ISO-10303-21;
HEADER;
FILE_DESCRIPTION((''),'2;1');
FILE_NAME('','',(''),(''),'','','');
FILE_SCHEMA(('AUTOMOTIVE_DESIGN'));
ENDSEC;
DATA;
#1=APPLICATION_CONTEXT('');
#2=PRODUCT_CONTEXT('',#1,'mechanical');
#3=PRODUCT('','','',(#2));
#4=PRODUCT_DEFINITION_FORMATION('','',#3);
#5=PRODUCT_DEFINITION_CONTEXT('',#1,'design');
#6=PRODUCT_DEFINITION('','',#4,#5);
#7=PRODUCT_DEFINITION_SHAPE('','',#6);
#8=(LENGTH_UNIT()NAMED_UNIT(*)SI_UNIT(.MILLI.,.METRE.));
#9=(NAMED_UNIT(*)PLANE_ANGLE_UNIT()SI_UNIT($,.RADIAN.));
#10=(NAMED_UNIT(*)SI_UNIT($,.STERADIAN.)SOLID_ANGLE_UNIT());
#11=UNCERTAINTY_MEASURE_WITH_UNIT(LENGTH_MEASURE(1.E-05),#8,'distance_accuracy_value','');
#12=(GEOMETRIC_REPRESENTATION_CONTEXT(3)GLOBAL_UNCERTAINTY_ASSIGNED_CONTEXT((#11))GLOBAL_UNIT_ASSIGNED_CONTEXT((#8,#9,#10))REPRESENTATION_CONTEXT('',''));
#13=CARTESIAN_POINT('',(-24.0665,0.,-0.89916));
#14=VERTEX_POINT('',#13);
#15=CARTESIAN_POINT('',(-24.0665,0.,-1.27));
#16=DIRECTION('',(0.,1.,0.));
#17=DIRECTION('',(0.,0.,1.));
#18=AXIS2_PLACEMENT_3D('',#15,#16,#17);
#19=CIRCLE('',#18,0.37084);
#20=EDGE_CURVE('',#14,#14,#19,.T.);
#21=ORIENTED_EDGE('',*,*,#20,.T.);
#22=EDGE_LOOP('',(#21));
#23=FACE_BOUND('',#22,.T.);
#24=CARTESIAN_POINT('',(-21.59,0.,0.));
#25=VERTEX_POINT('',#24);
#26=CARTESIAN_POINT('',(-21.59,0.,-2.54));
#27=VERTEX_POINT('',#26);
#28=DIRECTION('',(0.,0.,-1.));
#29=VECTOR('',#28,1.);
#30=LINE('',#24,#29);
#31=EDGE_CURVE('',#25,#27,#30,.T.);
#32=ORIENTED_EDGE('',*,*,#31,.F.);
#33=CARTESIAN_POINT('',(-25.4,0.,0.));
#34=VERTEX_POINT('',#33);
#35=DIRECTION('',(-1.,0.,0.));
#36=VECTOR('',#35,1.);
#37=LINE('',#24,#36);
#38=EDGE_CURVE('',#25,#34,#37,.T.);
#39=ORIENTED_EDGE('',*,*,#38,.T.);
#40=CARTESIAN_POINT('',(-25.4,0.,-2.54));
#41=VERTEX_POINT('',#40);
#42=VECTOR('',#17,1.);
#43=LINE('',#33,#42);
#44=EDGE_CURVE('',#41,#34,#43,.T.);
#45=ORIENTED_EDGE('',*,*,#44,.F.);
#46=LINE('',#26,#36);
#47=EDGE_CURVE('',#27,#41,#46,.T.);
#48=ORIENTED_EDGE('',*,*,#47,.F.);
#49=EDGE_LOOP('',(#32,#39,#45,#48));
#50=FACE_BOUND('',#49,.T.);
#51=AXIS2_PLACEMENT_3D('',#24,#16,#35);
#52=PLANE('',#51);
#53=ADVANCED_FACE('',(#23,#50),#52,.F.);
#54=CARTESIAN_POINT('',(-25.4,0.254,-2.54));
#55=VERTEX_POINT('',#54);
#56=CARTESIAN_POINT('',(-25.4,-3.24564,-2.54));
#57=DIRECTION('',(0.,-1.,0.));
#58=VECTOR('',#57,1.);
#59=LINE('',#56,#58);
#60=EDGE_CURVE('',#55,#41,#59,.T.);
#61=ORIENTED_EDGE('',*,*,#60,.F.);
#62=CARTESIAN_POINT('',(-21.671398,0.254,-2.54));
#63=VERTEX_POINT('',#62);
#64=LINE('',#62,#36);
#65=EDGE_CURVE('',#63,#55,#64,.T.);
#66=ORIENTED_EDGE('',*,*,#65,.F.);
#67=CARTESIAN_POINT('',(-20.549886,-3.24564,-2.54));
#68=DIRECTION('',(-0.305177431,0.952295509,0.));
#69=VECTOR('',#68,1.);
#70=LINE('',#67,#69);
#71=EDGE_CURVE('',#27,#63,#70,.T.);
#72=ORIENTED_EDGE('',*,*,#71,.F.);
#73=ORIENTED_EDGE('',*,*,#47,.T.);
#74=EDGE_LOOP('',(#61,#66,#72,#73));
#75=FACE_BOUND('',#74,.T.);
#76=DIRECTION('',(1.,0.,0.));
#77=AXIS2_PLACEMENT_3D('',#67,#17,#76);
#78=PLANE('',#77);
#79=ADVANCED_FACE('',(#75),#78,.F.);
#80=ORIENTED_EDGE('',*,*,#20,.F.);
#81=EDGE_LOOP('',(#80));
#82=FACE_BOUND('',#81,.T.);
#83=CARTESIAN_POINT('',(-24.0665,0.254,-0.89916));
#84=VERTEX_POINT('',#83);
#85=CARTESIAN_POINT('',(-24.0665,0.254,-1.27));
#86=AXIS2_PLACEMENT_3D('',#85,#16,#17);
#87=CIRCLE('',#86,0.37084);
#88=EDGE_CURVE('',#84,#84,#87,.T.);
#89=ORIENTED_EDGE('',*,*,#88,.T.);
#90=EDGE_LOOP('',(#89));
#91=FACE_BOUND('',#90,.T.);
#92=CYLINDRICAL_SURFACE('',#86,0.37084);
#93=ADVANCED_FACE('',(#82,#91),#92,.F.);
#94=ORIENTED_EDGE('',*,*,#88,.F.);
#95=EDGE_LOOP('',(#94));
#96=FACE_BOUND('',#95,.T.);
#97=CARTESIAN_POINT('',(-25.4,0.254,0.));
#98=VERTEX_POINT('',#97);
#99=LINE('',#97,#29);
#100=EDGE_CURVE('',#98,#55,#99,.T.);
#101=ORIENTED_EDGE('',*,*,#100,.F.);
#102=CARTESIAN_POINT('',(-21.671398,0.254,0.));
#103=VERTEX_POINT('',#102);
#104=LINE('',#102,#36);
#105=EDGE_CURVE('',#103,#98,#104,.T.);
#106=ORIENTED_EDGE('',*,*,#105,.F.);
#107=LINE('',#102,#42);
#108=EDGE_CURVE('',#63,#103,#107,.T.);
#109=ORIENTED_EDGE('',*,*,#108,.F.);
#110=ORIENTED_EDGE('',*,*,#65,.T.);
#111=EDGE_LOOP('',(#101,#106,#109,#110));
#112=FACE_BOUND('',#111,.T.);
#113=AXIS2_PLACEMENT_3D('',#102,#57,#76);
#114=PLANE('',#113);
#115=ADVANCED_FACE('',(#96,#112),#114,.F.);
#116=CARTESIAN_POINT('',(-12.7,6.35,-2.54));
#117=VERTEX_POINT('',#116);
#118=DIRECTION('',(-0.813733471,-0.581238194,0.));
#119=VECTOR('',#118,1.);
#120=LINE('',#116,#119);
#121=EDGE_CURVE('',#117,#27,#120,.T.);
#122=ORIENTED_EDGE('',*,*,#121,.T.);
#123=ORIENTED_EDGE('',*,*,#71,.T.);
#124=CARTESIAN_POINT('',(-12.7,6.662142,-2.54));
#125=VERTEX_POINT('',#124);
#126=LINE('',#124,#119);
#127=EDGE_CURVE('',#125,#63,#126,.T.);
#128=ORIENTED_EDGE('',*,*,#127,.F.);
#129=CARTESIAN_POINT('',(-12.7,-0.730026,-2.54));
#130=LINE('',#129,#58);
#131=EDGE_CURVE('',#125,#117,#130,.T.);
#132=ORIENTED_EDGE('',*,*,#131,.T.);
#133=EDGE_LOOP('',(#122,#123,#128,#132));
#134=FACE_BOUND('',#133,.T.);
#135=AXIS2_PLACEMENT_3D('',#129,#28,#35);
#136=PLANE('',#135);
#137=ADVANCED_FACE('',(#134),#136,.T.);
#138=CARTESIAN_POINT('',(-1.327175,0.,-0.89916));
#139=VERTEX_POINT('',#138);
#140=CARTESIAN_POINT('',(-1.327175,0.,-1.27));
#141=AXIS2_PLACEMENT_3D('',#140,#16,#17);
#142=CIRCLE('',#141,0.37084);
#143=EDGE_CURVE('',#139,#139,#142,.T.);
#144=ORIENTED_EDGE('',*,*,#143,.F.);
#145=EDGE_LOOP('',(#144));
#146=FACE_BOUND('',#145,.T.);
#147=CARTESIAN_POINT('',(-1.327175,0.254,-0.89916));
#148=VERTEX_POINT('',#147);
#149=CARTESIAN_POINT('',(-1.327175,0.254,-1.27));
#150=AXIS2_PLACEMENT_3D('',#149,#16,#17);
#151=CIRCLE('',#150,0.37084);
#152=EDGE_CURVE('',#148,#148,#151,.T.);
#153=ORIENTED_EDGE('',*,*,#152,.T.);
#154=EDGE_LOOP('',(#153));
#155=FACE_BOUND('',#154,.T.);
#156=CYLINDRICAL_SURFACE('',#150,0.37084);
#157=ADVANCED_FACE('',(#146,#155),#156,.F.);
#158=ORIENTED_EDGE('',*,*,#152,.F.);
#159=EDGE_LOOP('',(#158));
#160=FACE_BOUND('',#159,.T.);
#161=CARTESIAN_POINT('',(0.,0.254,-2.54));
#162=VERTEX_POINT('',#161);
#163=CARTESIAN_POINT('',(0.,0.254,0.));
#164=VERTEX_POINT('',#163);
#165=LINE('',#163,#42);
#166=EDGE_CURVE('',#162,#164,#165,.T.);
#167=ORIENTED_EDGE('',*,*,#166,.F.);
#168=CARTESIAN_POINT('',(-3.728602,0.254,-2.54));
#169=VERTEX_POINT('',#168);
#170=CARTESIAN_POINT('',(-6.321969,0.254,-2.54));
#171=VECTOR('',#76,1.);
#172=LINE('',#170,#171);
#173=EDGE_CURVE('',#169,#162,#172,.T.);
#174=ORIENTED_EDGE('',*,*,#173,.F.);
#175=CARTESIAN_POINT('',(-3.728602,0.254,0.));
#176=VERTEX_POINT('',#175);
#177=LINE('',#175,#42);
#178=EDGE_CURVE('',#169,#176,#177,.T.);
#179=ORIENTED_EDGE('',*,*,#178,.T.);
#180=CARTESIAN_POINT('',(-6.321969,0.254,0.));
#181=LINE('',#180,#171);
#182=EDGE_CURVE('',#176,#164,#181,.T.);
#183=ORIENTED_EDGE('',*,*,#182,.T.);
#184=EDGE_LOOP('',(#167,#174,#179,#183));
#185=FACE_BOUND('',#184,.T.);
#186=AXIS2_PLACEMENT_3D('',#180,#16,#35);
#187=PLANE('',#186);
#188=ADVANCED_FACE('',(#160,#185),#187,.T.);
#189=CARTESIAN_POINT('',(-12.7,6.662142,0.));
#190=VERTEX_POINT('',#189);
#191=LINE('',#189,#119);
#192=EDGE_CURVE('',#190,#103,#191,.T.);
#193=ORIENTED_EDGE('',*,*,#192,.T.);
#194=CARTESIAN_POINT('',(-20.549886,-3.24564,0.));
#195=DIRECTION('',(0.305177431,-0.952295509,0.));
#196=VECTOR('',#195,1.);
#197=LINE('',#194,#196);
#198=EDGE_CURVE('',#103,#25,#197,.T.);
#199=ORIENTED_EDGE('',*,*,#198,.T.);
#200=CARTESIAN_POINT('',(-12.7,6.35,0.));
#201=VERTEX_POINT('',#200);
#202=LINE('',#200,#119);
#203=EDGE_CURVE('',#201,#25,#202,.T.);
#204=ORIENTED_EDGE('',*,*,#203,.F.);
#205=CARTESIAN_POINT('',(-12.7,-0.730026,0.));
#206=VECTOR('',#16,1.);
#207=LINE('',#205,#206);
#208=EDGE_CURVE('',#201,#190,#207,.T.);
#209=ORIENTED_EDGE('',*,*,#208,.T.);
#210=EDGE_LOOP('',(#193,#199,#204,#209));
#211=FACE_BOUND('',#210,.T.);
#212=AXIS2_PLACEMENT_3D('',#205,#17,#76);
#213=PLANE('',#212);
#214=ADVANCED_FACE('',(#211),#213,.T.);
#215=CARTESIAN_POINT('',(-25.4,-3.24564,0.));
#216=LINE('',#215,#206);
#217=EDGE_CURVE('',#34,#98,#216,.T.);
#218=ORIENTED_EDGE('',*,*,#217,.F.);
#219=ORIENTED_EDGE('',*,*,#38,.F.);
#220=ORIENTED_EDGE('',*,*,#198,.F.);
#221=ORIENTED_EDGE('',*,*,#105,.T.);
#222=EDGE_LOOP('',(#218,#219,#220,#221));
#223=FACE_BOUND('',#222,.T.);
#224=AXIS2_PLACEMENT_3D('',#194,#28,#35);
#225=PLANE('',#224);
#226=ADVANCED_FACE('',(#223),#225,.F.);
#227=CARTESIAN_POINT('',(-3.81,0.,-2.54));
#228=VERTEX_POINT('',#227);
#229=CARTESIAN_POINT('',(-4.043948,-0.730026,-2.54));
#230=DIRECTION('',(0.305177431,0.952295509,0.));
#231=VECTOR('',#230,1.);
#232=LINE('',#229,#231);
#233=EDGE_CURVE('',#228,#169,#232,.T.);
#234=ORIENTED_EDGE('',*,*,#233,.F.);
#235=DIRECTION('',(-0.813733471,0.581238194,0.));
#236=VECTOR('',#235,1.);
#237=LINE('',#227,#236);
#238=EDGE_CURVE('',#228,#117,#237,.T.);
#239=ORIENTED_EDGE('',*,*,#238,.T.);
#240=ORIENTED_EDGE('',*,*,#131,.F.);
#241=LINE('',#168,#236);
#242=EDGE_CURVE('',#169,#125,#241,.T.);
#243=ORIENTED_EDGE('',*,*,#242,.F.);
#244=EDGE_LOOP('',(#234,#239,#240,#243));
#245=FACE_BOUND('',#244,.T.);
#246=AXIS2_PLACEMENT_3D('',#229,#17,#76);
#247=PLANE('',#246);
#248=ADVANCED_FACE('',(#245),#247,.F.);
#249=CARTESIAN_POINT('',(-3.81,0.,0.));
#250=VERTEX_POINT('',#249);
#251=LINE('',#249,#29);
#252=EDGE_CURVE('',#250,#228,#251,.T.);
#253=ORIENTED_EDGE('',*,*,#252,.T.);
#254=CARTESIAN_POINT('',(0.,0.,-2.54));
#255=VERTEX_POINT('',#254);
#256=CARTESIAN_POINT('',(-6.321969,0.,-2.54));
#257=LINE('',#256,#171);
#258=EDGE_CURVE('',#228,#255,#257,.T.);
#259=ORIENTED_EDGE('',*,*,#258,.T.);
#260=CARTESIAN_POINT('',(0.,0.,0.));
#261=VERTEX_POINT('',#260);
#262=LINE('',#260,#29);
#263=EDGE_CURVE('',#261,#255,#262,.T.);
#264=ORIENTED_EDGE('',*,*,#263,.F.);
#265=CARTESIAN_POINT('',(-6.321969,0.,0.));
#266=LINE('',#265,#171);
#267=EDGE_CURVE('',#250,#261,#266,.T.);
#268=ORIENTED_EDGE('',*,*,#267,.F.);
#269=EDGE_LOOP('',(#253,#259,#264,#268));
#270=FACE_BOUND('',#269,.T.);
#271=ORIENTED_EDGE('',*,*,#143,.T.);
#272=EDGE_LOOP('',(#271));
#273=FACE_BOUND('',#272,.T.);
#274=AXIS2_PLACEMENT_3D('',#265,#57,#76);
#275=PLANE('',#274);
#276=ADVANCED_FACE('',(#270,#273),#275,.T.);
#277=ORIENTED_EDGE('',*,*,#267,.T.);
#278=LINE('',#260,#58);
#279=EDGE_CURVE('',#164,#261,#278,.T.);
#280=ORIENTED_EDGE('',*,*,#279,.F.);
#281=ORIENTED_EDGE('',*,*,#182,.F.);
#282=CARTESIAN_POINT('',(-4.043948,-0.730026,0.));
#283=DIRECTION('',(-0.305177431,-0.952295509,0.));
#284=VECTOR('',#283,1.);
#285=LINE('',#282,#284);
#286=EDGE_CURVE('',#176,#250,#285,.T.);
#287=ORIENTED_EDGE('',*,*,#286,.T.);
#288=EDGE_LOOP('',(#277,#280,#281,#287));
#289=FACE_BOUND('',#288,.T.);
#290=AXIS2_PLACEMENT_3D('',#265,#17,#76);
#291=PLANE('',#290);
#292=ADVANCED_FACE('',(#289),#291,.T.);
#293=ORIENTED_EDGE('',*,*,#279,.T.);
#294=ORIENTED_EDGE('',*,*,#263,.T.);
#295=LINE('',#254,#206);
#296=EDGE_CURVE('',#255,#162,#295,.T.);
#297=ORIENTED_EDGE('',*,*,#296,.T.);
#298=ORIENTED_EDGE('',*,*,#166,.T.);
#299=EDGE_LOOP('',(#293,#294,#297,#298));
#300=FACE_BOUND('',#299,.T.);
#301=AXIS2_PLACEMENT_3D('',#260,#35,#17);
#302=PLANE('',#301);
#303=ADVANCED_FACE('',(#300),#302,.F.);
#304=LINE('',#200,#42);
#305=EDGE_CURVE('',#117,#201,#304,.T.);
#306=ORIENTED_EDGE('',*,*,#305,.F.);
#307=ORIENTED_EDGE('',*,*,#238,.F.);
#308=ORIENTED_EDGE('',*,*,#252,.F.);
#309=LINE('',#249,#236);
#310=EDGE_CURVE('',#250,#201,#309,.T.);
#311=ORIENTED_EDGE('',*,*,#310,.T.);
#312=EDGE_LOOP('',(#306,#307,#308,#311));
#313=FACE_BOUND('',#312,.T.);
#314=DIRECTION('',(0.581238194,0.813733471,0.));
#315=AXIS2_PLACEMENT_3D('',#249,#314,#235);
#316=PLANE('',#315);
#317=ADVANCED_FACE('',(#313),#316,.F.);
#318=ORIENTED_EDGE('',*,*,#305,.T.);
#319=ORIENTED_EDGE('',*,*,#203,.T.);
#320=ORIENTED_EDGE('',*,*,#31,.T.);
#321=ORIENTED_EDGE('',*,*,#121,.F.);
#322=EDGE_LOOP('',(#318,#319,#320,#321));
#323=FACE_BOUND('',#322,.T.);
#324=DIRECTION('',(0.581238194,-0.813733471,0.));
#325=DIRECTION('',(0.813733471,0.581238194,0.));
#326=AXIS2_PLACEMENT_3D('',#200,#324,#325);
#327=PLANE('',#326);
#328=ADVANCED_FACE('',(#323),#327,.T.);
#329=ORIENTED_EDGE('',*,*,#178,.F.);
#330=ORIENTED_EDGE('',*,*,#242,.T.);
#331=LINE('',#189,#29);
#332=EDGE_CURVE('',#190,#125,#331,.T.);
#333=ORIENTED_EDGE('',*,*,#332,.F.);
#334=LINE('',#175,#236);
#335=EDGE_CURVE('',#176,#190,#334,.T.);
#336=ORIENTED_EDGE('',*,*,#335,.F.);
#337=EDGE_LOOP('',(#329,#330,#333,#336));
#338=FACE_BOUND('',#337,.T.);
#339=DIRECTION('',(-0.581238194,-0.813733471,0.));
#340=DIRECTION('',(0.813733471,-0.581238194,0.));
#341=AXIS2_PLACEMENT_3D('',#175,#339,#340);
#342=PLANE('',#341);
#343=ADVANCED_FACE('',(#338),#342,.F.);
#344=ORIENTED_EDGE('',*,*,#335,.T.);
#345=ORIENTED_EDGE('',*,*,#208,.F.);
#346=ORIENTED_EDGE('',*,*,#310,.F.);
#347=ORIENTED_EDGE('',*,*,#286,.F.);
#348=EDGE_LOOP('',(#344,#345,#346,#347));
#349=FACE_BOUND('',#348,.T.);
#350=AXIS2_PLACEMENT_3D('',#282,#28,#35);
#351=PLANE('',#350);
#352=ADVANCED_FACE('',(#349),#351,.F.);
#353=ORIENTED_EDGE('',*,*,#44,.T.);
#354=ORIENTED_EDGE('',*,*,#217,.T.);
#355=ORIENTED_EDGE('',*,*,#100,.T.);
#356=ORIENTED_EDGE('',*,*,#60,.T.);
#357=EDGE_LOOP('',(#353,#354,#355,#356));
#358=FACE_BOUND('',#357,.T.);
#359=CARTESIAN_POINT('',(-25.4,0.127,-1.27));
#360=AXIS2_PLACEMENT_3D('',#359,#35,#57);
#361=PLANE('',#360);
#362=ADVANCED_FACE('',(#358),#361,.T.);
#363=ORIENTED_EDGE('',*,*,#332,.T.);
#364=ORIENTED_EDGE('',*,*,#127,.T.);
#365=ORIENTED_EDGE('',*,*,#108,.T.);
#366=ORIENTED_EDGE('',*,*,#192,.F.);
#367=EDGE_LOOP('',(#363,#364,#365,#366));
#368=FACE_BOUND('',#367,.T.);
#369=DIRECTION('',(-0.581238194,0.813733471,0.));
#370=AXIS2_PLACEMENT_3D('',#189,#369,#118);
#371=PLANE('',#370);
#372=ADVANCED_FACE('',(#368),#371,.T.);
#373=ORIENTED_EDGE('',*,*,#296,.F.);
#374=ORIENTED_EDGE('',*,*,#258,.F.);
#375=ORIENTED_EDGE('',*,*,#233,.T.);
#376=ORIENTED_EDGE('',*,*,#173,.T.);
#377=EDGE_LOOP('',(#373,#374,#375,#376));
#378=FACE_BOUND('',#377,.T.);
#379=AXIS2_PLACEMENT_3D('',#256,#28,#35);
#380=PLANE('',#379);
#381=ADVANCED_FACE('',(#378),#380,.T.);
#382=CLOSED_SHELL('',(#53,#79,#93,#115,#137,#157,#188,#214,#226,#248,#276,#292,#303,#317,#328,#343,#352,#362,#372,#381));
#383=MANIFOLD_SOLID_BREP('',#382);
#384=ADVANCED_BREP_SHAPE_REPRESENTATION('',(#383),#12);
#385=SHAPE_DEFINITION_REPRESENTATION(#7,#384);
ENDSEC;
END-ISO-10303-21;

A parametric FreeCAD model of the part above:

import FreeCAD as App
import Part
import Sketcher

V = App.Vector
Q = App.Units.Quantity


def add_polygon(sketch, points):
    """Adds a closed chain of lines whose ends are joined by coincident constraints."""
    first, n = sketch.GeometryCount, len(points)
    for a, b in zip(points, points[1:] + points[:1]):
        sketch.addGeometry(Part.LineSegment(App.Vector(*a, 0), App.Vector(*b, 0)), False)
    for i in range(n):
        sketch.addConstraint(Sketcher.Constraint("Coincident", first + i, 2, first + (i + 1) % n, 1))

doc = App.newDocument("Part")
body = doc.addObject("PartDesign::Body", "Body")

# Sketch on YZ plane
sketch1 = doc.addObject("Sketcher::SketchObject", "Sketch")
body.addObject(sketch1)
sketch1.AttachmentSupport = (doc.YZ_Plane, [""])
sketch1.MapMode = "FlatFace"
add_polygon(sketch1, [(0.25, 0), (0, 0), (0, -2.54), (0.25, -2.54)])  # lines 0-3
sketch1.addConstraint(Sketcher.Constraint("Horizontal", 0))
sketch1.addConstraint(Sketcher.Constraint("Vertical", 1))
sketch1.addConstraint(Sketcher.Constraint("Horizontal", 2))
sketch1.addConstraint(Sketcher.Constraint("Vertical", 3))
sketch1.addConstraint(Sketcher.Constraint("Coincident", 0, 2, -1, 1))
sketch1.addConstraint(Sketcher.Constraint("DistanceY", 1, 2, 1, 1, Q("0.1 in")))
sketch1.addConstraint(Sketcher.Constraint("DistanceX", 0, 2, 0, 1, Q("0.01 in")))

# Sketch on XY plane
sketch2 = doc.addObject("Sketcher::SketchObject", "Sketch001")
body.addObject(sketch2)
sketch2.AttachmentSupport = (doc.XY_Plane, [""])
sketch2.MapMode = "FlatFace"
sketch2.addGeometry(Part.LineSegment(V(0, 0, 0), V(-3.8, 0, 0)), False)
sketch2.addGeometry(Part.LineSegment(V(-3.8, 0, 0), V(-12.7, 6.3, 0)), False)
sketch2.addGeometry(Part.LineSegment(V(-12.7, 6.3, 0), V(-21.6, 0, 0)), False)
sketch2.addGeometry(Part.LineSegment(V(-21.6, 0, 0), V(-25.4, 0, 0)), False)
sketch2.addConstraint(Sketcher.Constraint("Coincident", 0, 2, 1, 1))
sketch2.addConstraint(Sketcher.Constraint("Coincident", 1, 2, 2, 1))
sketch2.addConstraint(Sketcher.Constraint("Coincident", 2, 2, 3, 1))
sketch2.addConstraint(Sketcher.Constraint("Horizontal", 0))
sketch2.addConstraint(Sketcher.Constraint("Horizontal", 3))
sketch2.addConstraint(Sketcher.Constraint("Coincident", 0, 1, -1, 1))
sketch2.addConstraint(Sketcher.Constraint("PointOnObject", 2, 2, -1))
sketch2.addConstraint(Sketcher.Constraint("Equal", 0, 3))
sketch2.addConstraint(Sketcher.Constraint("Equal", 1, 2))
sketch2.addConstraint(Sketcher.Constraint("DistanceX", 3, 2, -1, 1, Q("1 in")))
sketch2.addConstraint(Sketcher.Constraint("DistanceX", 0, 2, 0, 1, Q("0.15 in")))
sketch2.addConstraint(Sketcher.Constraint("DistanceY", -1, 1, 1, 2, Q("0.25 in")))
doc.recompute()

additivepipe = doc.addObject("PartDesign::AdditivePipe", "AdditivePipe")
body.addObject(additivepipe)
additivepipe.Profile = sketch1
additivepipe.Spine = (sketch2, ["Edge1", "Edge2", "Edge3", "Edge4"])
additivepipe.Transition = "Right corner"

# Sketch on XZ plane
sketch3 = doc.addObject("Sketcher::SketchObject", "Sketch002")
body.addObject(sketch3)
sketch3.AttachmentSupport = (doc.XZ_Plane, [""])
sketch3.MapMode = "FlatFace"
sketch3.AttachmentOffset = App.Placement(V(0, 0, -0.01 * 25.4), App.Rotation())
sketch3.addGeometry(Part.Circle(V(-24.07, -1.27, 0), V(0, 0, 1), 0.37), False)
sketch3.addGeometry(Part.Circle(V(-1.33, -1.27, 0), V(0, 0, 1), 0.37), False)
sketch3.addConstraint(Sketcher.Constraint("Equal", 0, 1))
sketch3.addConstraint(Sketcher.Constraint("Horizontal", 0, 3, 1, 3))
sketch3.addConstraint(Sketcher.Constraint("Diameter", 0, Q("0.0292 in")))
sketch3.addConstraint(Sketcher.Constraint("DistanceY", 0, 3, -1, 1, Q("0.05 in")))
sketch3.addConstraint(Sketcher.Constraint("DistanceX", 0, 3, -1, 1, Q("0.9475 in")))
sketch3.addConstraint(Sketcher.Constraint("DistanceX", 1, 3, -1, 1, 1.327175))
doc.recompute()
hole = doc.addObject("PartDesign::Hole", "Hole")
body.addObject(hole)
hole.Profile = sketch3
hole.ThreadType = "None"
hole.Diameter = Q("0.0292 in")
hole.DepthType = "ThroughAll"
hole.Reversed = True

doc.recompute()
